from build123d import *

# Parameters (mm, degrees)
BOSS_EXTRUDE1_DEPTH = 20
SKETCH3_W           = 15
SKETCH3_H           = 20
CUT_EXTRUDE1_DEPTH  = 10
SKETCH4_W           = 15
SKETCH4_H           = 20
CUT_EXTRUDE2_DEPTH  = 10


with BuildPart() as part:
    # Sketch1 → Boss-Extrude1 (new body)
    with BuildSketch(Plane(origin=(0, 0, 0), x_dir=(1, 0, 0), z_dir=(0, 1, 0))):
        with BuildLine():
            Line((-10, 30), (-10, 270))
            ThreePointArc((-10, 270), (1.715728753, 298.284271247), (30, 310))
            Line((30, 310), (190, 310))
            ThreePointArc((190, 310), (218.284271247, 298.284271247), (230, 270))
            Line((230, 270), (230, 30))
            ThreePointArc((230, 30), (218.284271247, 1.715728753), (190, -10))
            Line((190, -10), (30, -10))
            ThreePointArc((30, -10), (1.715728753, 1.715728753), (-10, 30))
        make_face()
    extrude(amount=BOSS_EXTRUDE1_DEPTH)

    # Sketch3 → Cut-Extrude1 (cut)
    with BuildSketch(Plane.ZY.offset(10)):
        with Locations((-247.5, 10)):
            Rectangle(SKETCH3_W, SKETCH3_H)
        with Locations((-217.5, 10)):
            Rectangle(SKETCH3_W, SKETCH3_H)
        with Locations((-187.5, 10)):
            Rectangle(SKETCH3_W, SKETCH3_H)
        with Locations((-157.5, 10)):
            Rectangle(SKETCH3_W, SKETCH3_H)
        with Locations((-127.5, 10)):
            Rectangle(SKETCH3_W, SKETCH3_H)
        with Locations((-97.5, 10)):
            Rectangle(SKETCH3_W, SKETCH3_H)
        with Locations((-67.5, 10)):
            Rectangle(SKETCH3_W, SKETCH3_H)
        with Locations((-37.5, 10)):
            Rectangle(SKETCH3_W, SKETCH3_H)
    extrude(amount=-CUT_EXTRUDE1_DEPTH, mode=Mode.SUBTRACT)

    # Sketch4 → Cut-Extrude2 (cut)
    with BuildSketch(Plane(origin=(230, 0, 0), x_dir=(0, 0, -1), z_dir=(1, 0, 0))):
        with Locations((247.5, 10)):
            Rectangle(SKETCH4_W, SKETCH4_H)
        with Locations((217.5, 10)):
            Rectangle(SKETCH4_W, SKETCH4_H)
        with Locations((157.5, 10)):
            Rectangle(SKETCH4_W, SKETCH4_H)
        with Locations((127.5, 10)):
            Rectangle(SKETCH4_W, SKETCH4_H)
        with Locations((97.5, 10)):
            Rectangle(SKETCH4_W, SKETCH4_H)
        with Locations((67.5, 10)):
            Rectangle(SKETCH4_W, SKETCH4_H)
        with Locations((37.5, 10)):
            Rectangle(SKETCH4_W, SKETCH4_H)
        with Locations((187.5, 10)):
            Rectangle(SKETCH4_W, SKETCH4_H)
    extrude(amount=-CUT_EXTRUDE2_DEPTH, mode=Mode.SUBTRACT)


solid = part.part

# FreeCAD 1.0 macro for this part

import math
import FreeCAD as App
import Part
import Sketcher

V = App.Vector
Q = App.Units.Quantity

doc = App.newDocument("Part")
body = doc.addObject("PartDesign::Body", "Body")

sketch1 = body.newObject("Sketcher::SketchObject", "Sketch")
sketch1.AttachmentSupport = (doc.getObject("XZ_Plane"), [""])
sketch1.MapMode = "FlatFace"
sketch1.addGeometry([
    Part.LineSegment(V(-10, -270, 0), V(-10, -30, 0)),
    Part.ArcOfCircle(Part.Circle(V(30, -30, 0), V(0, 0, 1), 40), math.radians(90), math.radians(180)),
    Part.LineSegment(V(30, 10, 0), V(190, 10, 0)),
    Part.ArcOfCircle(Part.Circle(V(190, -30, 0), V(0, 0, 1), 40), math.radians(0), math.radians(90)),
    Part.LineSegment(V(230, -30, 0), V(230, -270, 0)),
    Part.ArcOfCircle(Part.Circle(V(190, -270, 0), V(0, 0, 1), 40), math.radians(-90), math.radians(0)),
    Part.LineSegment(V(190, -310, 0), V(30, -310, 0)),
    Part.ArcOfCircle(Part.Circle(V(30, -270, 0), V(0, 0, 1), 40), math.radians(-180), math.radians(-90)),
], False)
sketch1.addConstraint([
    Sketcher.Constraint("Tangent", 0, 2, 1, 2),
    Sketcher.Constraint("Tangent", 1, 1, 2, 1),
    Sketcher.Constraint("Tangent", 2, 2, 3, 2),
    Sketcher.Constraint("Tangent", 3, 1, 4, 1),
    Sketcher.Constraint("Tangent", 4, 2, 5, 2),
    Sketcher.Constraint("Tangent", 5, 1, 6, 1),
    Sketcher.Constraint("Tangent", 6, 2, 7, 2),
    Sketcher.Constraint("Tangent", 7, 1, 0, 1),
    Sketcher.Constraint("Vertical", 0),
    Sketcher.Constraint("Horizontal", 2),
    Sketcher.Constraint("Vertical", 4),
    Sketcher.Constraint("Horizontal", 6),
    Sketcher.Constraint("Equal", 1, 3),
    Sketcher.Constraint("Equal", 3, 5),
    Sketcher.Constraint("Equal", 5, 7),
    Sketcher.Constraint("Radius", 1, Q("40 mm")),
    Sketcher.Constraint("DistanceX", 2, 1, 2, 2, Q("160 mm")),
    Sketcher.Constraint("DistanceY", 0, 1, 0, 2, Q("240 mm")),
    Sketcher.Constraint("DistanceX", -1, 1, 1, 3, Q("30 mm")),
    Sketcher.Constraint("DistanceY", 1, 3, -1, 1, Q("30 mm")),
])
pad1 = body.newObject("PartDesign::Pad", "Pad")
pad1.Profile = sketch1
pad1.Length = 20
pad1.Reversed = True

sketch2 = body.newObject("Sketcher::SketchObject", "Sketch001")
sketch2.AttachmentSupport = (doc.getObject("YZ_Plane"), [""])
sketch2.MapMode = "FlatFace"
sketch2.AttachmentOffset = App.Placement(V(0, 0, -10), App.Rotation())
sketch2.addGeometry([
    Part.LineSegment(V(20, -255, 0), V(0, -255, 0)),
    Part.LineSegment(V(0, -255, 0), V(0, -240, 0)),
    Part.LineSegment(V(0, -240, 0), V(20, -240, 0)),
    Part.LineSegment(V(20, -240, 0), V(20, -255, 0)),
    Part.LineSegment(V(20, -225, 0), V(0, -225, 0)),
    Part.LineSegment(V(0, -225, 0), V(0, -210, 0)),
    Part.LineSegment(V(0, -210, 0), V(20, -210, 0)),
    Part.LineSegment(V(20, -210, 0), V(20, -225, 0)),
    Part.LineSegment(V(20, -195, 0), V(0, -195, 0)),
    Part.LineSegment(V(0, -195, 0), V(0, -180, 0)),
    Part.LineSegment(V(0, -180, 0), V(20, -180, 0)),
    Part.LineSegment(V(20, -180, 0), V(20, -195, 0)),
    Part.LineSegment(V(20, -165, 0), V(0, -165, 0)),
    Part.LineSegment(V(0, -165, 0), V(0, -150, 0)),
    Part.LineSegment(V(0, -150, 0), V(20, -150, 0)),
    Part.LineSegment(V(20, -150, 0), V(20, -165, 0)),
    Part.LineSegment(V(20, -135, 0), V(0, -135, 0)),
    Part.LineSegment(V(0, -135, 0), V(0, -120, 0)),
    Part.LineSegment(V(0, -120, 0), V(20, -120, 0)),
    Part.LineSegment(V(20, -120, 0), V(20, -135, 0)),
    Part.LineSegment(V(20, -105, 0), V(0, -105, 0)),
    Part.LineSegment(V(0, -105, 0), V(0, -90, 0)),
    Part.LineSegment(V(0, -90, 0), V(20, -90, 0)),
    Part.LineSegment(V(20, -90, 0), V(20, -105, 0)),
    Part.LineSegment(V(20, -75, 0), V(0, -75, 0)),
    Part.LineSegment(V(0, -75, 0), V(0, -60, 0)),
    Part.LineSegment(V(0, -60, 0), V(20, -60, 0)),
    Part.LineSegment(V(20, -60, 0), V(20, -75, 0)),
    Part.LineSegment(V(20, -45, 0), V(0, -45, 0)),
    Part.LineSegment(V(0, -45, 0), V(0, -30, 0)),
    Part.LineSegment(V(0, -30, 0), V(20, -30, 0)),
    Part.LineSegment(V(20, -30, 0), V(20, -45, 0)),
], False)
sketch2.addConstraint([
    Sketcher.Constraint("Coincident", 0, 2, 1, 1),
    Sketcher.Constraint("Coincident", 1, 2, 2, 1),
    Sketcher.Constraint("Coincident", 2, 2, 3, 1),
    Sketcher.Constraint("Coincident", 3, 2, 0, 1),
    Sketcher.Constraint("Coincident", 4, 2, 5, 1),
    Sketcher.Constraint("Coincident", 5, 2, 6, 1),
    Sketcher.Constraint("Coincident", 6, 2, 7, 1),
    Sketcher.Constraint("Coincident", 7, 2, 4, 1),
    Sketcher.Constraint("Coincident", 8, 2, 9, 1),
    Sketcher.Constraint("Coincident", 9, 2, 10, 1),
    Sketcher.Constraint("Coincident", 10, 2, 11, 1),
    Sketcher.Constraint("Coincident", 11, 2, 8, 1),
    Sketcher.Constraint("Coincident", 12, 2, 13, 1),
    Sketcher.Constraint("Coincident", 13, 2, 14, 1),
    Sketcher.Constraint("Coincident", 14, 2, 15, 1),
    Sketcher.Constraint("Coincident", 15, 2, 12, 1),
    Sketcher.Constraint("Coincident", 16, 2, 17, 1),
    Sketcher.Constraint("Coincident", 17, 2, 18, 1),
    Sketcher.Constraint("Coincident", 18, 2, 19, 1),
    Sketcher.Constraint("Coincident", 19, 2, 16, 1),
    Sketcher.Constraint("Coincident", 20, 2, 21, 1),
    Sketcher.Constraint("Coincident", 21, 2, 22, 1),
    Sketcher.Constraint("Coincident", 22, 2, 23, 1),
    Sketcher.Constraint("Coincident", 23, 2, 20, 1),
    Sketcher.Constraint("Coincident", 24, 2, 25, 1),
    Sketcher.Constraint("Coincident", 25, 2, 26, 1),
    Sketcher.Constraint("Coincident", 26, 2, 27, 1),
    Sketcher.Constraint("Coincident", 27, 2, 24, 1),
    Sketcher.Constraint("Coincident", 28, 2, 29, 1),
    Sketcher.Constraint("Coincident", 29, 2, 30, 1),
    Sketcher.Constraint("Coincident", 30, 2, 31, 1),
    Sketcher.Constraint("Coincident", 31, 2, 28, 1),
    Sketcher.Constraint("Horizontal", 0),
    Sketcher.Constraint("Vertical", 1),
    Sketcher.Constraint("Horizontal", 2),
    Sketcher.Constraint("Vertical", 3),
    Sketcher.Constraint("Horizontal", 4),
    Sketcher.Constraint("Vertical", 5),
    Sketcher.Constraint("Horizontal", 6),
    Sketcher.Constraint("Vertical", 7),
    Sketcher.Constraint("Horizontal", 8),
    Sketcher.Constraint("Vertical", 9),
    Sketcher.Constraint("Horizontal", 10),
    Sketcher.Constraint("Vertical", 11),
    Sketcher.Constraint("Horizontal", 12),
    Sketcher.Constraint("Vertical", 13),
    Sketcher.Constraint("Horizontal", 14),
    Sketcher.Constraint("Vertical", 15),
    Sketcher.Constraint("Horizontal", 16),
    Sketcher.Constraint("Vertical", 17),
    Sketcher.Constraint("Horizontal", 18),
    Sketcher.Constraint("Vertical", 19),
    Sketcher.Constraint("Horizontal", 20),
    Sketcher.Constraint("Vertical", 21),
    Sketcher.Constraint("Horizontal", 22),
    Sketcher.Constraint("Vertical", 23),
    Sketcher.Constraint("Horizontal", 24),
    Sketcher.Constraint("Vertical", 25),
    Sketcher.Constraint("Horizontal", 26),
    Sketcher.Constraint("Vertical", 27),
    Sketcher.Constraint("Horizontal", 28),
    Sketcher.Constraint("Vertical", 29),
    Sketcher.Constraint("Horizontal", 30),
    Sketcher.Constraint("Vertical", 31),
    Sketcher.Constraint("PointOnObject", 0, 2, -2),
    Sketcher.Constraint("PointOnObject", 4, 2, -2),
    Sketcher.Constraint("PointOnObject", 8, 2, -2),
    Sketcher.Constraint("PointOnObject", 12, 2, -2),
    Sketcher.Constraint("PointOnObject", 16, 2, -2),
    Sketcher.Constraint("PointOnObject", 20, 2, -2),
    Sketcher.Constraint("PointOnObject", 24, 2, -2),
    Sketcher.Constraint("PointOnObject", 28, 2, -2),
    Sketcher.Constraint("Vertical", 3, 2, 6, 2),
    Sketcher.Constraint("Vertical", 7, 2, 10, 2),
    Sketcher.Constraint("Vertical", 11, 2, 14, 2),
    Sketcher.Constraint("Vertical", 15, 2, 18, 2),
    Sketcher.Constraint("Vertical", 19, 2, 22, 2),
    Sketcher.Constraint("Vertical", 23, 2, 26, 2),
    Sketcher.Constraint("Vertical", 27, 2, 30, 2),
    Sketcher.Constraint("Equal", 3, 5),
    Sketcher.Constraint("Equal", 7, 9),
    Sketcher.Constraint("Equal", 11, 13),
    Sketcher.Constraint("Equal", 15, 17),
    Sketcher.Constraint("Equal", 19, 21),
    Sketcher.Constraint("Equal", 23, 25),
    Sketcher.Constraint("Equal", 27, 29),
    Sketcher.Constraint("DistanceX", 0, 2, 0, 1, Q("20 mm")),
    Sketcher.Constraint("DistanceY", 1, 1, 1, 2, Q("15 mm")),
    Sketcher.Constraint("DistanceY", 0, 2, -1, 1, Q("255 mm")),
    Sketcher.Constraint("DistanceY", 4, 2, -1, 1, Q("225 mm")),
    Sketcher.Constraint("DistanceY", 8, 2, -1, 1, Q("195 mm")),
    Sketcher.Constraint("DistanceY", 12, 2, -1, 1, Q("165 mm")),
    Sketcher.Constraint("DistanceY", 16, 2, -1, 1, Q("135 mm")),
    Sketcher.Constraint("DistanceY", 20, 2, -1, 1, Q("105 mm")),
    Sketcher.Constraint("DistanceY", 24, 2, -1, 1, Q("75 mm")),
    Sketcher.Constraint("DistanceY", 28, 2, -1, 1, Q("45 mm")),
])
pocket1 = body.newObject("PartDesign::Pocket", "Pocket")
pocket1.Profile = sketch2
pocket1.Length = 10
pocket1.Reversed = True

sketch3 = body.newObject("Sketcher::SketchObject", "Sketch002")
sketch3.AttachmentSupport = (doc.getObject("YZ_Plane"), [""])
sketch3.MapMode = "FlatFace"
sketch3.AttachmentOffset = App.Placement(V(0, 0, 230), App.Rotation())
sketch3.addGeometry([
    Part.LineSegment(V(20, -240, 0), V(0, -240, 0)),
    Part.LineSegment(V(0, -240, 0), V(0, -255, 0)),
    Part.LineSegment(V(0, -255, 0), V(20, -255, 0)),
    Part.LineSegment(V(20, -255, 0), V(20, -240, 0)),
    Part.LineSegment(V(20, -210, 0), V(0, -210, 0)),
    Part.LineSegment(V(0, -210, 0), V(0, -225, 0)),
    Part.LineSegment(V(0, -225, 0), V(20, -225, 0)),
    Part.LineSegment(V(20, -225, 0), V(20, -210, 0)),
    Part.LineSegment(V(20, -150, 0), V(0, -150, 0)),
    Part.LineSegment(V(0, -150, 0), V(0, -165, 0)),
    Part.LineSegment(V(0, -165, 0), V(20, -165, 0)),
    Part.LineSegment(V(20, -165, 0), V(20, -150, 0)),
    Part.LineSegment(V(20, -120, 0), V(0, -120, 0)),
    Part.LineSegment(V(0, -120, 0), V(0, -135, 0)),
    Part.LineSegment(V(0, -135, 0), V(20, -135, 0)),
    Part.LineSegment(V(20, -135, 0), V(20, -120, 0)),
    Part.LineSegment(V(20, -90, 0), V(0, -90, 0)),
    Part.LineSegment(V(0, -90, 0), V(0, -105, 0)),
    Part.LineSegment(V(0, -105, 0), V(20, -105, 0)),
    Part.LineSegment(V(20, -105, 0), V(20, -90, 0)),
    Part.LineSegment(V(20, -60, 0), V(0, -60, 0)),
    Part.LineSegment(V(0, -60, 0), V(0, -75, 0)),
    Part.LineSegment(V(0, -75, 0), V(20, -75, 0)),
    Part.LineSegment(V(20, -75, 0), V(20, -60, 0)),
    Part.LineSegment(V(20, -30, 0), V(0, -30, 0)),
    Part.LineSegment(V(0, -30, 0), V(0, -45, 0)),
    Part.LineSegment(V(0, -45, 0), V(20, -45, 0)),
    Part.LineSegment(V(20, -45, 0), V(20, -30, 0)),
    Part.LineSegment(V(20, -180, 0), V(0, -180, 0)),
    Part.LineSegment(V(0, -180, 0), V(0, -195, 0)),
    Part.LineSegment(V(0, -195, 0), V(20, -195, 0)),
    Part.LineSegment(V(20, -195, 0), V(20, -180, 0)),
], False)
sketch3.addConstraint([
    Sketcher.Constraint("Coincident", 0, 2, 1, 1),
    Sketcher.Constraint("Coincident", 1, 2, 2, 1),
    Sketcher.Constraint("Coincident", 2, 2, 3, 1),
    Sketcher.Constraint("Coincident", 3, 2, 0, 1),
    Sketcher.Constraint("Coincident", 4, 2, 5, 1),
    Sketcher.Constraint("Coincident", 5, 2, 6, 1),
    Sketcher.Constraint("Coincident", 6, 2, 7, 1),
    Sketcher.Constraint("Coincident", 7, 2, 4, 1),
    Sketcher.Constraint("Coincident", 8, 2, 9, 1),
    Sketcher.Constraint("Coincident", 9, 2, 10, 1),
    Sketcher.Constraint("Coincident", 10, 2, 11, 1),
    Sketcher.Constraint("Coincident", 11, 2, 8, 1),
    Sketcher.Constraint("Coincident", 12, 2, 13, 1),
    Sketcher.Constraint("Coincident", 13, 2, 14, 1),
    Sketcher.Constraint("Coincident", 14, 2, 15, 1),
    Sketcher.Constraint("Coincident", 15, 2, 12, 1),
    Sketcher.Constraint("Coincident", 16, 2, 17, 1),
    Sketcher.Constraint("Coincident", 17, 2, 18, 1),
    Sketcher.Constraint("Coincident", 18, 2, 19, 1),
    Sketcher.Constraint("Coincident", 19, 2, 16, 1),
    Sketcher.Constraint("Coincident", 20, 2, 21, 1),
    Sketcher.Constraint("Coincident", 21, 2, 22, 1),
    Sketcher.Constraint("Coincident", 22, 2, 23, 1),
    Sketcher.Constraint("Coincident", 23, 2, 20, 1),
    Sketcher.Constraint("Coincident", 24, 2, 25, 1),
    Sketcher.Constraint("Coincident", 25, 2, 26, 1),
    Sketcher.Constraint("Coincident", 26, 2, 27, 1),
    Sketcher.Constraint("Coincident", 27, 2, 24, 1),
    Sketcher.Constraint("Coincident", 28, 2, 29, 1),
    Sketcher.Constraint("Coincident", 29, 2, 30, 1),
    Sketcher.Constraint("Coincident", 30, 2, 31, 1),
    Sketcher.Constraint("Coincident", 31, 2, 28, 1),
    Sketcher.Constraint("Horizontal", 0),
    Sketcher.Constraint("Vertical", 1),
    Sketcher.Constraint("Horizontal", 2),
    Sketcher.Constraint("Vertical", 3),
    Sketcher.Constraint("Horizontal", 4),
    Sketcher.Constraint("Vertical", 5),
    Sketcher.Constraint("Horizontal", 6),
    Sketcher.Constraint("Vertical", 7),
    Sketcher.Constraint("Horizontal", 8),
    Sketcher.Constraint("Vertical", 9),
    Sketcher.Constraint("Horizontal", 10),
    Sketcher.Constraint("Vertical", 11),
    Sketcher.Constraint("Horizontal", 12),
    Sketcher.Constraint("Vertical", 13),
    Sketcher.Constraint("Horizontal", 14),
    Sketcher.Constraint("Vertical", 15),
    Sketcher.Constraint("Horizontal", 16),
    Sketcher.Constraint("Vertical", 17),
    Sketcher.Constraint("Horizontal", 18),
    Sketcher.Constraint("Vertical", 19),
    Sketcher.Constraint("Horizontal", 20),
    Sketcher.Constraint("Vertical", 21),
    Sketcher.Constraint("Horizontal", 22),
    Sketcher.Constraint("Vertical", 23),
    Sketcher.Constraint("Horizontal", 24),
    Sketcher.Constraint("Vertical", 25),
    Sketcher.Constraint("Horizontal", 26),
    Sketcher.Constraint("Vertical", 27),
    Sketcher.Constraint("Horizontal", 28),
    Sketcher.Constraint("Vertical", 29),
    Sketcher.Constraint("Horizontal", 30),
    Sketcher.Constraint("Vertical", 31),
    Sketcher.Constraint("PointOnObject", 0, 2, -2),
    Sketcher.Constraint("PointOnObject", 4, 2, -2),
    Sketcher.Constraint("PointOnObject", 8, 2, -2),
    Sketcher.Constraint("PointOnObject", 12, 2, -2),
    Sketcher.Constraint("PointOnObject", 16, 2, -2),
    Sketcher.Constraint("PointOnObject", 20, 2, -2),
    Sketcher.Constraint("PointOnObject", 24, 2, -2),
    Sketcher.Constraint("PointOnObject", 28, 2, -2),
    Sketcher.Constraint("Vertical", 3, 2, 6, 2),
    Sketcher.Constraint("Vertical", 7, 2, 10, 2),
    Sketcher.Constraint("Vertical", 11, 2, 14, 2),
    Sketcher.Constraint("Vertical", 15, 2, 18, 2),
    Sketcher.Constraint("Vertical", 19, 2, 22, 2),
    Sketcher.Constraint("Vertical", 23, 2, 26, 2),
    Sketcher.Constraint("Vertical", 27, 2, 30, 2),
    Sketcher.Constraint("Equal", 3, 5),
    Sketcher.Constraint("Equal", 7, 9),
    Sketcher.Constraint("Equal", 11, 13),
    Sketcher.Constraint("Equal", 15, 17),
    Sketcher.Constraint("Equal", 19, 21),
    Sketcher.Constraint("Equal", 23, 25),
    Sketcher.Constraint("Equal", 27, 29),
    Sketcher.Constraint("DistanceX", 0, 2, 0, 1, Q("20 mm")),
    Sketcher.Constraint("DistanceY", 1, 2, 1, 1, Q("15 mm")),
    Sketcher.Constraint("DistanceY", 0, 2, -1, 1, Q("240 mm")),
    Sketcher.Constraint("DistanceY", 4, 2, -1, 1, Q("210 mm")),
    Sketcher.Constraint("DistanceY", 8, 2, -1, 1, Q("150 mm")),
    Sketcher.Constraint("DistanceY", 12, 2, -1, 1, Q("120 mm")),
    Sketcher.Constraint("DistanceY", 16, 2, -1, 1, Q("90 mm")),
    Sketcher.Constraint("DistanceY", 20, 2, -1, 1, Q("60 mm")),
    Sketcher.Constraint("DistanceY", 24, 2, -1, 1, Q("30 mm")),
    Sketcher.Constraint("DistanceY", 28, 2, -1, 1, Q("180 mm")),
])
pocket2 = body.newObject("PartDesign::Pocket", "Pocket001")
pocket2.Profile = sketch3
pocket2.Length = 10

doc.recompute()
